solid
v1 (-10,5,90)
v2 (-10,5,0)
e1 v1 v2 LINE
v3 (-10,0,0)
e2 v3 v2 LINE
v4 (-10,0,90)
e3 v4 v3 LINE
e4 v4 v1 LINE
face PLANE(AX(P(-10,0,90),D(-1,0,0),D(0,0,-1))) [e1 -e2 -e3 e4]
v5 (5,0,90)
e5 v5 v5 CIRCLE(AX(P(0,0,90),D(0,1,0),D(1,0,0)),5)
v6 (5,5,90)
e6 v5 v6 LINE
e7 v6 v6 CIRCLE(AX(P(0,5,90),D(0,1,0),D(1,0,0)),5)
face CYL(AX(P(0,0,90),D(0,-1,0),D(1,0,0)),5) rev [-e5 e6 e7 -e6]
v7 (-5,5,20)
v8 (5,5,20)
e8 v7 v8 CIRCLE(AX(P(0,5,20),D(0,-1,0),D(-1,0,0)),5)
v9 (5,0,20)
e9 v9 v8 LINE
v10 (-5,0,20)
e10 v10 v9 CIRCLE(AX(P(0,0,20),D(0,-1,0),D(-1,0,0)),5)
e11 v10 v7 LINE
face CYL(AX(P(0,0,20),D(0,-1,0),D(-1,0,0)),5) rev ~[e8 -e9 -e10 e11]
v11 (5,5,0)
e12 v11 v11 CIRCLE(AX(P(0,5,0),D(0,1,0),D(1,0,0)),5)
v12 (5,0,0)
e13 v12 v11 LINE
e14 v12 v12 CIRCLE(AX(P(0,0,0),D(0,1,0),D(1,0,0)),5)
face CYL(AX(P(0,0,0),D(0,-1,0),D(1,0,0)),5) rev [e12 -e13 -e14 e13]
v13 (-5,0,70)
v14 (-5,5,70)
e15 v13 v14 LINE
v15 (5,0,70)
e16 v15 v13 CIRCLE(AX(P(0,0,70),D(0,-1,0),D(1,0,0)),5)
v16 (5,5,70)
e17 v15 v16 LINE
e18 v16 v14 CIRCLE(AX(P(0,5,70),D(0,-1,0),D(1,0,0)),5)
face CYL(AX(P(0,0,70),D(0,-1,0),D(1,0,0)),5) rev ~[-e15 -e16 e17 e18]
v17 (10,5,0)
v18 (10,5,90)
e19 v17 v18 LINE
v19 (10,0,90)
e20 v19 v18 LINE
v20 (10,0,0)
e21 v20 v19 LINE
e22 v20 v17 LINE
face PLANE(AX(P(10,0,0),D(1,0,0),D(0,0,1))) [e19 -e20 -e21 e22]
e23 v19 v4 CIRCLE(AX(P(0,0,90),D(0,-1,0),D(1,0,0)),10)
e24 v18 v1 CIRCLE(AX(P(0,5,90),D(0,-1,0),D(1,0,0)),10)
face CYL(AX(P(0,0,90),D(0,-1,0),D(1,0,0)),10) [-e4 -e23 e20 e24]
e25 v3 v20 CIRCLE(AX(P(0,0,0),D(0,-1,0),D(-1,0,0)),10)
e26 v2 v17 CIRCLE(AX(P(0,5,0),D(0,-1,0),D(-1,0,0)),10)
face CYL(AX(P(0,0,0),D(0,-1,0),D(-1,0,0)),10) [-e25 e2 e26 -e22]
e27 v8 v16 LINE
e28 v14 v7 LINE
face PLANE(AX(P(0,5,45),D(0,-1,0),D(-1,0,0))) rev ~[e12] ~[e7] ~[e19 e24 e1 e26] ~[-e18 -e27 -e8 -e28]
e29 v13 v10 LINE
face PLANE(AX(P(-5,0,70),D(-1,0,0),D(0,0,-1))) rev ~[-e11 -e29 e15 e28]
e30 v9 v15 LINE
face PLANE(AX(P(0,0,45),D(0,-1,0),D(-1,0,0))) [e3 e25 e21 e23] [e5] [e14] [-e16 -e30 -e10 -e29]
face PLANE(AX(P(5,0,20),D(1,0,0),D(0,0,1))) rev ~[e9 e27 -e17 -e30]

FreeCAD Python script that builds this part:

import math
import FreeCAD as App
import Part
import Sketcher
from FreeCAD import Vector
Q = App.Units.Quantity

doc = App.newDocument("Part")
body = doc.addObject("PartDesign::Body", "Body")

sketch1 = body.newObject("Sketcher::SketchObject", "Sketch")
sketch1.AttachmentSupport = (doc.getObject("XZ_Plane"), [""])
sketch1.MapMode = "FlatFace"
sketch1.addGeometry(Part.LineSegment(Vector(10, 90, 0), Vector(10, 0, 0)), False)
sketch1.addGeometry(Part.ArcOfCircle(Part.Circle(Vector(0, 0, 0), Vector(0, 0, 1), 10), math.radians(180), math.radians(360)), False)
sketch1.addGeometry(Part.LineSegment(Vector(-10, 0, 0), Vector(-10, 90, 0)), False)
sketch1.addGeometry(Part.ArcOfCircle(Part.Circle(Vector(0, 90, 0), Vector(0, 0, 1), 10), math.radians(0), math.radians(180)), False)
sketch1.addGeometry(Part.Circle(Vector(0, 90, 0), Vector(0, 0, 1), 5), False)
sketch1.addGeometry(Part.LineSegment(Vector(5, 20, 0), Vector(5, 70, 0)), False)
sketch1.addGeometry(Part.ArcOfCircle(Part.Circle(Vector(0, 70, 0), Vector(0, 0, 1), 5), math.radians(0), math.radians(180)), False)
sketch1.addGeometry(Part.LineSegment(Vector(-5, 70, 0), Vector(-5, 20, 0)), False)
sketch1.addGeometry(Part.ArcOfCircle(Part.Circle(Vector(0, 20, 0), Vector(0, 0, 1), 5), math.radians(180), math.radians(360)), False)
sketch1.addGeometry(Part.Circle(Vector(0, 0, 0), Vector(0, 0, 1), 5), False)
sketch1.addConstraint(Sketcher.Constraint("Tangent", 0, 2, 1, 2))
sketch1.addConstraint(Sketcher.Constraint("Tangent", 1, 1, 2, 1))
sketch1.addConstraint(Sketcher.Constraint("Tangent", 2, 2, 3, 2))
sketch1.addConstraint(Sketcher.Constraint("Tangent", 3, 1, 0, 1))
sketch1.addConstraint(Sketcher.Constraint("Tangent", 5, 2, 6, 1))
sketch1.addConstraint(Sketcher.Constraint("Tangent", 6, 2, 7, 1))
sketch1.addConstraint(Sketcher.Constraint("Tangent", 7, 2, 8, 1))
sketch1.addConstraint(Sketcher.Constraint("Tangent", 8, 2, 5, 1))
sketch1.addConstraint(Sketcher.Constraint("Vertical", 0))
sketch1.addConstraint(Sketcher.Constraint("Vertical", 2))
sketch1.addConstraint(Sketcher.Constraint("Vertical", 5))
sketch1.addConstraint(Sketcher.Constraint("Vertical", 7))
sketch1.addConstraint(Sketcher.Constraint("Coincident", 1, 3, -1, 1))
sketch1.addConstraint(Sketcher.Constraint("Coincident", 9, 3, -1, 1))
sketch1.addConstraint(Sketcher.Constraint("Coincident", 4, 3, 3, 3))
sketch1.addConstraint(Sketcher.Constraint("Equal", 4, 6))
sketch1.addConstraint(Sketcher.Constraint("Equal", 8, 9))
sketch1.addConstraint(Sketcher.Constraint("PointOnObject", 6, 3, -2))
sketch1.addConstraint(Sketcher.Constraint("Diameter", 4, Q("10 mm")))
sketch1.addConstraint(Sketcher.Constraint("Radius", 1, Q("10 mm")))
sketch1.addConstraint(Sketcher.Constraint("DistanceY", 0, 2, 0, 1, Q("90 mm")))
sketch1.addConstraint(Sketcher.Constraint("DistanceY", 5, 1, 5, 2, Q("50 mm")))
sketch1.addConstraint(Sketcher.Constraint("DistanceY", -1, 1, 6, 3, Q("70 mm")))
pad1 = body.newObject("PartDesign::Pad", "Pad")
pad1.Profile = sketch1
pad1.Length = 5
pad1.Reversed = True

doc.recompute()
